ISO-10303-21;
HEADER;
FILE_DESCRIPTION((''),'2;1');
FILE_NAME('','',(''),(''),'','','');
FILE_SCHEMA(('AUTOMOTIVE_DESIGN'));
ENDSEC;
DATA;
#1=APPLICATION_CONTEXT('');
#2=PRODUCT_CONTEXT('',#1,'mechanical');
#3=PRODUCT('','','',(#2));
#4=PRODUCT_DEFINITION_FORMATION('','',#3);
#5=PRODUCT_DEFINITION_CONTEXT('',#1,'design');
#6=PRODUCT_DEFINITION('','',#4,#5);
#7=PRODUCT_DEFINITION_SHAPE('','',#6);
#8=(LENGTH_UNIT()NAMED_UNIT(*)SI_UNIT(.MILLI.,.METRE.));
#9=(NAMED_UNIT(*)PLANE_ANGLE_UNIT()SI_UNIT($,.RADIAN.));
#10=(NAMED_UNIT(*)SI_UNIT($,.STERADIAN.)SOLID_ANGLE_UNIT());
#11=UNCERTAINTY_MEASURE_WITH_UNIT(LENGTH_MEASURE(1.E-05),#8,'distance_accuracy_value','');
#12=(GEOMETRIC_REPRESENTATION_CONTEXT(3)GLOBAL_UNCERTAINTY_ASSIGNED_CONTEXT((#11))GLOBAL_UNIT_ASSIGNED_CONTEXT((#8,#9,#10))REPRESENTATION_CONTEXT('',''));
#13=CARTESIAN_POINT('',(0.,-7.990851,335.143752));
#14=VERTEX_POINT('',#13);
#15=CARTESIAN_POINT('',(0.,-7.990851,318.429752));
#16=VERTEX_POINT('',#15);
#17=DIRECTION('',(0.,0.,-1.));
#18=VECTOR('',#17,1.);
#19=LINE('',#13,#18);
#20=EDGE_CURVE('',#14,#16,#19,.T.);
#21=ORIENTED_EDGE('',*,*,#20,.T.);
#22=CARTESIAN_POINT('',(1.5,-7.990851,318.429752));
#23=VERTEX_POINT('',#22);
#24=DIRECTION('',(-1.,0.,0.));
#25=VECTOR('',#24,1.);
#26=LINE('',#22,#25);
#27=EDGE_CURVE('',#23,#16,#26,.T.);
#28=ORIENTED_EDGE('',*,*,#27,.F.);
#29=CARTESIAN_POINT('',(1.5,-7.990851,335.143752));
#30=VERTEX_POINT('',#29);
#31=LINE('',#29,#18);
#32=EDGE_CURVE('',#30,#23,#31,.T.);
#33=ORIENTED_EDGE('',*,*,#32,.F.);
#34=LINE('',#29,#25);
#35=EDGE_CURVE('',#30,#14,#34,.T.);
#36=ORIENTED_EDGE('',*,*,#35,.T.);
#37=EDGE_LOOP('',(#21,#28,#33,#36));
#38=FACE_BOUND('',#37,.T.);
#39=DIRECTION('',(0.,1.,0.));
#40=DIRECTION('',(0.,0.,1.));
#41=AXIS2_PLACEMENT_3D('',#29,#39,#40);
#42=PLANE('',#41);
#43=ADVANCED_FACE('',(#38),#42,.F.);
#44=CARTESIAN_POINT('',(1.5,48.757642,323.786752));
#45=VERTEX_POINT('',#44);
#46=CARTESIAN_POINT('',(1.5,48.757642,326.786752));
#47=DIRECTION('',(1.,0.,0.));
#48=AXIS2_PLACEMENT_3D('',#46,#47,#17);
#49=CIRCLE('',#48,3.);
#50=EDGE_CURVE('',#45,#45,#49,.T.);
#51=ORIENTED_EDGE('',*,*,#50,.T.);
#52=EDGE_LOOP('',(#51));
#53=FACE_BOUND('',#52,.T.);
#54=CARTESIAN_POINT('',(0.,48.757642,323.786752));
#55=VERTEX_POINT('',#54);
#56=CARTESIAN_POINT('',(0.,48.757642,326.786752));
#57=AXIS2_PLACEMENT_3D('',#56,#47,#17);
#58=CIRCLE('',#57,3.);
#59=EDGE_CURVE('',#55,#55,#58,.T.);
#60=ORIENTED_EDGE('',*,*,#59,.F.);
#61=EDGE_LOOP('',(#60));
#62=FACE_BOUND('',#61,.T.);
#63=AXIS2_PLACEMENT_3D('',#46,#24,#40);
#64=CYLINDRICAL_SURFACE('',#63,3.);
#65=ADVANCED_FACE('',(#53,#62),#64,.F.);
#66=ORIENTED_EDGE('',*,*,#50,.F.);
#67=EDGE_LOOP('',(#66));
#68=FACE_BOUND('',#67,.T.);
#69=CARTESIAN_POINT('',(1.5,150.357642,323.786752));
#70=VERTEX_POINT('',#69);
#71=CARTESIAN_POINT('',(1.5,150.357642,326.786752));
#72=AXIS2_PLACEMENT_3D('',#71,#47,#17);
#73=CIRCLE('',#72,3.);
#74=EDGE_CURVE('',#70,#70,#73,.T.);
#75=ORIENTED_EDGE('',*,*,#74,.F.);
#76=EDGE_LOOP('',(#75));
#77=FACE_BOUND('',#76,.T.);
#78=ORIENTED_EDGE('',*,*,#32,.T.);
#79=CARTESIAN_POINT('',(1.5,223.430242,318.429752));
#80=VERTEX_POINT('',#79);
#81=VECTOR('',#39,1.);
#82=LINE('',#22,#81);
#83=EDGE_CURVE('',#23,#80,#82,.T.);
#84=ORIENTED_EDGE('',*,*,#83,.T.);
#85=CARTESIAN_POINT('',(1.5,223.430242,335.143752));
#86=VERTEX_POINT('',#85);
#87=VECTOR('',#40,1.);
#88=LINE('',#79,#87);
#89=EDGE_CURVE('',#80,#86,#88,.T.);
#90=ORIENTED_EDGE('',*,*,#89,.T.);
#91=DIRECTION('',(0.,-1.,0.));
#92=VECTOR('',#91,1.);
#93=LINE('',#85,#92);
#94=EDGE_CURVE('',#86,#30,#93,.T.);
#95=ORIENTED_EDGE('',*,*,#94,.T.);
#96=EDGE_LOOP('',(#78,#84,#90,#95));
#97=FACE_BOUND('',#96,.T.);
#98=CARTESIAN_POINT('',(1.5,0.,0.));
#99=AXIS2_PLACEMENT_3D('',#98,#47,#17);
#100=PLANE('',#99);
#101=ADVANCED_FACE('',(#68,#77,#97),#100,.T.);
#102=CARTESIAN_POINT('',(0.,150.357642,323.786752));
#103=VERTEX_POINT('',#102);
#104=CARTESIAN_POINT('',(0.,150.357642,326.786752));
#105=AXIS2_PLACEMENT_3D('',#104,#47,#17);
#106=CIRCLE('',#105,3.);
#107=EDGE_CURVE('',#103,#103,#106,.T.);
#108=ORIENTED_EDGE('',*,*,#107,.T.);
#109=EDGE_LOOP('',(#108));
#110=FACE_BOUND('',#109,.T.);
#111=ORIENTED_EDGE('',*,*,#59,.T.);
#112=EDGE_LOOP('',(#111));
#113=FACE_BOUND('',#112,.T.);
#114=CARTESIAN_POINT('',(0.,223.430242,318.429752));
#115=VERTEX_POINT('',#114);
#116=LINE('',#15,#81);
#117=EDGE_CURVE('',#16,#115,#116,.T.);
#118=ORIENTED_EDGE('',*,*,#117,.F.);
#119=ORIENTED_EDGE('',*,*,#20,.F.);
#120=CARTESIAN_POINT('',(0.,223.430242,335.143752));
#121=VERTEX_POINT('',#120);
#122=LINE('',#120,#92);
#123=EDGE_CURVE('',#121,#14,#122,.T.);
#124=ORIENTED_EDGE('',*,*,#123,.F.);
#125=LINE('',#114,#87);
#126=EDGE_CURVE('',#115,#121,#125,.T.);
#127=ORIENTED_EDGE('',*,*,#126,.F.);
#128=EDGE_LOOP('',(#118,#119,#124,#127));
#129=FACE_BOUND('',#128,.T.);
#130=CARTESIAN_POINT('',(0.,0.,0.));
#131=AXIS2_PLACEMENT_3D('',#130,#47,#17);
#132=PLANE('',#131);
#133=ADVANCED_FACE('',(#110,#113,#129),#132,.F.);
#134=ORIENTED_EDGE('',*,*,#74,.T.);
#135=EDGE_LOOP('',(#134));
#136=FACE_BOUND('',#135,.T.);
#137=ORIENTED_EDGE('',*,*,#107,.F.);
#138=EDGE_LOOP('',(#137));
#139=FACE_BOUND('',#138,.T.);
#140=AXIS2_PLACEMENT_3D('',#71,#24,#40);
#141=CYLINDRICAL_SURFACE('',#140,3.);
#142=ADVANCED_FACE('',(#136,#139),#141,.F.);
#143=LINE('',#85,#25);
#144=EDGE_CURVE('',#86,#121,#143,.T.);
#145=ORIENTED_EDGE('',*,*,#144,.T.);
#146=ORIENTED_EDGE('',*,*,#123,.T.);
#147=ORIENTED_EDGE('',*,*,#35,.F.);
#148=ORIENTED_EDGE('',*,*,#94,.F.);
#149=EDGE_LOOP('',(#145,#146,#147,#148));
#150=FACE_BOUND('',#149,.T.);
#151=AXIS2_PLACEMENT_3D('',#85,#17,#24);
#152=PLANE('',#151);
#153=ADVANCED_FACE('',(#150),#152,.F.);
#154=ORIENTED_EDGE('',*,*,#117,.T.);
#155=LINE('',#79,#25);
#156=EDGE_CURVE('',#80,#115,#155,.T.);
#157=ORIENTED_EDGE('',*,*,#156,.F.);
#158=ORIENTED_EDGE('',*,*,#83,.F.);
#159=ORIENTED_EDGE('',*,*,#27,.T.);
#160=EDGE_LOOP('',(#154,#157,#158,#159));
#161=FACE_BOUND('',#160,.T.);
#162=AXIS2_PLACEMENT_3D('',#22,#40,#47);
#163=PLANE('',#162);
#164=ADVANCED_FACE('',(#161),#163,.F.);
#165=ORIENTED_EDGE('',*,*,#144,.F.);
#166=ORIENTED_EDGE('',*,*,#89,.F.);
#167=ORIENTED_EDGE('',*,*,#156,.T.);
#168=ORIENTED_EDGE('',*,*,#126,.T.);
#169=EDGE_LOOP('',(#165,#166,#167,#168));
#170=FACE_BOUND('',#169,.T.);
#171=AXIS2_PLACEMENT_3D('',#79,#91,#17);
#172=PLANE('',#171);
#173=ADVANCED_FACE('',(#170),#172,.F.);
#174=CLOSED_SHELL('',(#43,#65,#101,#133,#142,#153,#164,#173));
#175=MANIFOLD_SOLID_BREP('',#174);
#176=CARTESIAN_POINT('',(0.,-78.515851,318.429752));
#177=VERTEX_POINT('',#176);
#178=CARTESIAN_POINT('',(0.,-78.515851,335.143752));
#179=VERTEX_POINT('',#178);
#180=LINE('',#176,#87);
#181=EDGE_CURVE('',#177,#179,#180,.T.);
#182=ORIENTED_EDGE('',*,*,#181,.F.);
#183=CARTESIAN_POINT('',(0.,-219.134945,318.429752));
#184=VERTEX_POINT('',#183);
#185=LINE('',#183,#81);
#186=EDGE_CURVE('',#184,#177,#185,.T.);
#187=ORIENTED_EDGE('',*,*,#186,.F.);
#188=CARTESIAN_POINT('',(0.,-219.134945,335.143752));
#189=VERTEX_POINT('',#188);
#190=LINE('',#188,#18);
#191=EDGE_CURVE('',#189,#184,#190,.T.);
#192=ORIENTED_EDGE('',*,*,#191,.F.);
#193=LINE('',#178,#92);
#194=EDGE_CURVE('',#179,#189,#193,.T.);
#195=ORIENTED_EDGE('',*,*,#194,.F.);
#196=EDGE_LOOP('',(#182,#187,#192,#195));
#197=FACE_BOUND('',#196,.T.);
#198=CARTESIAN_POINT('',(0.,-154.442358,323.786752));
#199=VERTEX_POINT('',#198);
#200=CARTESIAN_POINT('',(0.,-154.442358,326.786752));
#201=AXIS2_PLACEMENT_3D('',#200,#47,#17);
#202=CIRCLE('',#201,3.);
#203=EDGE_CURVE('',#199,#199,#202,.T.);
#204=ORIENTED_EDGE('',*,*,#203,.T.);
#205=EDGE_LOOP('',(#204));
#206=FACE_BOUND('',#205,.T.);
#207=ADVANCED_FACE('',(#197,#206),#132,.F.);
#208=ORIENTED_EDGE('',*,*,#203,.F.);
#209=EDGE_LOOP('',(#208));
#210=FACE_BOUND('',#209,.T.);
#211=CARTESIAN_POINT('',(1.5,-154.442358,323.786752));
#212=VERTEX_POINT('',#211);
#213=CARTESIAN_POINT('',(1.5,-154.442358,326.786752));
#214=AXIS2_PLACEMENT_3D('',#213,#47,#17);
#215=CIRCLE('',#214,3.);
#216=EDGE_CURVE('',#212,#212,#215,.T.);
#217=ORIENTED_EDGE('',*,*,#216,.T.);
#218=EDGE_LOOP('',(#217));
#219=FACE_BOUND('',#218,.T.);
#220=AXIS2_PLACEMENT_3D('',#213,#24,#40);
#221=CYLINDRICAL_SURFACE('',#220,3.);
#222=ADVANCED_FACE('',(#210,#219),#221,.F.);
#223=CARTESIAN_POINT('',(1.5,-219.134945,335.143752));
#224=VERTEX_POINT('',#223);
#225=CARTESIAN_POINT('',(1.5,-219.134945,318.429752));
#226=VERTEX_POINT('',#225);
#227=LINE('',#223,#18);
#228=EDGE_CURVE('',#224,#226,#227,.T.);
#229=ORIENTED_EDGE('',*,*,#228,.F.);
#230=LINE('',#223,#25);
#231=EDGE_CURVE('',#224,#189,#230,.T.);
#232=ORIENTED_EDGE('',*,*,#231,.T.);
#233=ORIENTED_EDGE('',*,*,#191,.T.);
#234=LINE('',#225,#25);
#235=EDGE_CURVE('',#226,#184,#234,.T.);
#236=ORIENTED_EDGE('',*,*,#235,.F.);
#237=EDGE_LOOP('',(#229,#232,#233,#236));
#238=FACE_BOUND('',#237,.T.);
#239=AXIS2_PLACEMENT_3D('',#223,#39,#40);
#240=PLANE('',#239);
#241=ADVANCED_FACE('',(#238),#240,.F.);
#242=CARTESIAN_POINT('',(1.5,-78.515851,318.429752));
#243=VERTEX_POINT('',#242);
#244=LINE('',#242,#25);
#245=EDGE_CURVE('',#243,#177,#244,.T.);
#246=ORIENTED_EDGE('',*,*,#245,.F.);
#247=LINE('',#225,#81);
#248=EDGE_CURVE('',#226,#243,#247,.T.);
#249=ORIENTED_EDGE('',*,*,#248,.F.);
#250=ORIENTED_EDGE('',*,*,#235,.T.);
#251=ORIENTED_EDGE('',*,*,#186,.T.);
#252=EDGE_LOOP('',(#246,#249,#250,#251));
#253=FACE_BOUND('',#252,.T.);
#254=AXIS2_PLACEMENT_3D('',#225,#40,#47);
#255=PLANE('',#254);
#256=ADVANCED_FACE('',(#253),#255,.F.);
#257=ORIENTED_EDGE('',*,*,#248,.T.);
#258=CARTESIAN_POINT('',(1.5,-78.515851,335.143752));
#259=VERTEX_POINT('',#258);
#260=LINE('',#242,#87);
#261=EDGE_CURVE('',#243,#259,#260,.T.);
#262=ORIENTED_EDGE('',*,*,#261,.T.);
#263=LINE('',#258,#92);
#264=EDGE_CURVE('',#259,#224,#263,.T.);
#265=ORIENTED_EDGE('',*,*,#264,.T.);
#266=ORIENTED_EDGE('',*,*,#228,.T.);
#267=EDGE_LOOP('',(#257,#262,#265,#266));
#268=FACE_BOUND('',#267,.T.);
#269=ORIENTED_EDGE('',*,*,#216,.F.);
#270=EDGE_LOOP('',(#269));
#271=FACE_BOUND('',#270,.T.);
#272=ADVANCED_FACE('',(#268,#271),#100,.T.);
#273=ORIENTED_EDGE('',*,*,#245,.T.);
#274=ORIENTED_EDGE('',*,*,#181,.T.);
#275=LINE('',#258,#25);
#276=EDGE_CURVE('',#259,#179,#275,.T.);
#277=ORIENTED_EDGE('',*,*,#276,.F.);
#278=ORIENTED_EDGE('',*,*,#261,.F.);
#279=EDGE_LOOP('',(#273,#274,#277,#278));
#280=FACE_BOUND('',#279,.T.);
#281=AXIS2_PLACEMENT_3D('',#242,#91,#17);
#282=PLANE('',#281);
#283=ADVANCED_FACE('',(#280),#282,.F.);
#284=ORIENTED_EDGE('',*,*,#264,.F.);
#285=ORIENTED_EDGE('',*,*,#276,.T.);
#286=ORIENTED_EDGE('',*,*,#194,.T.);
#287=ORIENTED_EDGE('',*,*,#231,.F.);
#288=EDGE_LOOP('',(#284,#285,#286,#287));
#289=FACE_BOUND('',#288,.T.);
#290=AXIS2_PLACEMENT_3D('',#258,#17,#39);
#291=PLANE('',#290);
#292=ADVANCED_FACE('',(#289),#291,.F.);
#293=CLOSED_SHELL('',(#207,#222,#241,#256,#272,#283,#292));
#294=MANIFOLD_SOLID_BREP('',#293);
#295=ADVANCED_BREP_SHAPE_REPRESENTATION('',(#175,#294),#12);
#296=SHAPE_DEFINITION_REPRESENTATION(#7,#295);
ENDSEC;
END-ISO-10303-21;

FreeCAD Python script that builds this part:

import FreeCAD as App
import Part
import Sketcher

V = App.Vector
Q = App.Units.Quantity


def add_polygon(sketch, points):
    """Adds a closed chain of lines whose ends are joined by coincident constraints."""
    first, n = sketch.GeometryCount, len(points)
    for a, b in zip(points, points[1:] + points[:1]):
        sketch.addGeometry(Part.LineSegment(App.Vector(*a, 0), App.Vector(*b, 0)), False)
    for i in range(n):
        sketch.addConstraint(Sketcher.Constraint("Coincident", first + i, 2, first + (i + 1) % n, 1))

doc = App.newDocument("Part")
body = doc.addObject("PartDesign::Body", "Body")

# Sketch on YZ plane
sketch1 = body.newObject("Sketcher::SketchObject", "Sketch")
sketch1.AttachmentSupport = (doc.getObject("YZ_Plane"), [""])
sketch1.MapMode = "FlatFace"
add_polygon(sketch1, [(-78.5, 335.1), (-219.1, 335.1), (-219.1, 318.4), (-78.5, 318.4)])  # lines 0-3
sketch1.addGeometry(Part.Circle(V(-154.4, 326.8, 0), V(0, 0, 1), 3), False)  # 4
sketch1.addConstraint([
    Sketcher.Constraint("Horizontal", 0),
    Sketcher.Constraint("Vertical", 1),
    Sketcher.Constraint("Horizontal", 2),
    Sketcher.Constraint("Vertical", 3),
    Sketcher.Constraint("Diameter", 4, Q("6 mm")),
    Sketcher.Constraint("DistanceY", 1, 2, 1, 1, Q("16.714 mm")),
    Sketcher.Constraint("DistanceY", 4, 3, 0, 2, Q("8.357 mm")),
    Sketcher.Constraint("DistanceX", 0, 2, 0, 1, Q("140.619093 mm")),
    Sketcher.Constraint("DistanceX", 4, 3, -1, 1, Q("154.442358 mm")),
    Sketcher.Constraint("DistanceX", 2, 2, -1, 1, Q("78.515851 mm")),
    Sketcher.Constraint("DistanceY", -1, 1, 4, 3, Q("326.786752 mm")),
])
pad1 = body.newObject("PartDesign::Pad", "Pad")
pad1.Profile = sketch1
pad1.Length = 1.5
body2 = doc.addObject("PartDesign::Body", "Body001")

# Sketch on YZ plane
sketch2 = body2.newObject("Sketcher::SketchObject", "Sketch001")
sketch2.AttachmentSupport = (doc.getObject("YZ_Plane001"), [""])
sketch2.MapMode = "FlatFace"
add_polygon(sketch2, [(223.4, 335.1), (-8, 335.1), (-8, 318.4), (223.4, 318.4)])  # lines 0-3
sketch2.addGeometry(Part.Circle(V(48.8, 326.8, 0), V(0, 0, 1), 3), False)  # 4
sketch2.addGeometry(Part.Circle(V(150.4, 326.8, 0), V(0, 0, 1), 3), False)  # 5
sketch2.addConstraint([
    Sketcher.Constraint("Horizontal", 0),
    Sketcher.Constraint("Vertical", 1),
    Sketcher.Constraint("Horizontal", 2),
    Sketcher.Constraint("Vertical", 3),
    Sketcher.Constraint("Equal", 4, 5),
    Sketcher.Constraint("Horizontal", 4, 3, 5, 3),
    Sketcher.Constraint("Diameter", 4, Q("6 mm")),
    Sketcher.Constraint("DistanceX", 4, 3, 5, 3, Q("101.6 mm")),
    Sketcher.Constraint("DistanceY", 1, 2, 1, 1, Q("16.714 mm")),
    Sketcher.Constraint("DistanceY", 4, 3, 0, 2, Q("8.357 mm")),
    Sketcher.Constraint("DistanceX", 5, 3, 2, 2, Q("73.0726 mm")),
    Sketcher.Constraint("DistanceX", 0, 2, 0, 1, Q("231.421093 mm")),
    Sketcher.Constraint("DistanceX", -1, 1, 4, 3, Q("48.757642 mm")),
    Sketcher.Constraint("DistanceY", -1, 1, 4, 3, Q("326.786752 mm")),
])
pad2 = body2.newObject("PartDesign::Pad", "Pad001")
pad2.Profile = sketch2
pad2.Length = 1.5

doc.recompute()
